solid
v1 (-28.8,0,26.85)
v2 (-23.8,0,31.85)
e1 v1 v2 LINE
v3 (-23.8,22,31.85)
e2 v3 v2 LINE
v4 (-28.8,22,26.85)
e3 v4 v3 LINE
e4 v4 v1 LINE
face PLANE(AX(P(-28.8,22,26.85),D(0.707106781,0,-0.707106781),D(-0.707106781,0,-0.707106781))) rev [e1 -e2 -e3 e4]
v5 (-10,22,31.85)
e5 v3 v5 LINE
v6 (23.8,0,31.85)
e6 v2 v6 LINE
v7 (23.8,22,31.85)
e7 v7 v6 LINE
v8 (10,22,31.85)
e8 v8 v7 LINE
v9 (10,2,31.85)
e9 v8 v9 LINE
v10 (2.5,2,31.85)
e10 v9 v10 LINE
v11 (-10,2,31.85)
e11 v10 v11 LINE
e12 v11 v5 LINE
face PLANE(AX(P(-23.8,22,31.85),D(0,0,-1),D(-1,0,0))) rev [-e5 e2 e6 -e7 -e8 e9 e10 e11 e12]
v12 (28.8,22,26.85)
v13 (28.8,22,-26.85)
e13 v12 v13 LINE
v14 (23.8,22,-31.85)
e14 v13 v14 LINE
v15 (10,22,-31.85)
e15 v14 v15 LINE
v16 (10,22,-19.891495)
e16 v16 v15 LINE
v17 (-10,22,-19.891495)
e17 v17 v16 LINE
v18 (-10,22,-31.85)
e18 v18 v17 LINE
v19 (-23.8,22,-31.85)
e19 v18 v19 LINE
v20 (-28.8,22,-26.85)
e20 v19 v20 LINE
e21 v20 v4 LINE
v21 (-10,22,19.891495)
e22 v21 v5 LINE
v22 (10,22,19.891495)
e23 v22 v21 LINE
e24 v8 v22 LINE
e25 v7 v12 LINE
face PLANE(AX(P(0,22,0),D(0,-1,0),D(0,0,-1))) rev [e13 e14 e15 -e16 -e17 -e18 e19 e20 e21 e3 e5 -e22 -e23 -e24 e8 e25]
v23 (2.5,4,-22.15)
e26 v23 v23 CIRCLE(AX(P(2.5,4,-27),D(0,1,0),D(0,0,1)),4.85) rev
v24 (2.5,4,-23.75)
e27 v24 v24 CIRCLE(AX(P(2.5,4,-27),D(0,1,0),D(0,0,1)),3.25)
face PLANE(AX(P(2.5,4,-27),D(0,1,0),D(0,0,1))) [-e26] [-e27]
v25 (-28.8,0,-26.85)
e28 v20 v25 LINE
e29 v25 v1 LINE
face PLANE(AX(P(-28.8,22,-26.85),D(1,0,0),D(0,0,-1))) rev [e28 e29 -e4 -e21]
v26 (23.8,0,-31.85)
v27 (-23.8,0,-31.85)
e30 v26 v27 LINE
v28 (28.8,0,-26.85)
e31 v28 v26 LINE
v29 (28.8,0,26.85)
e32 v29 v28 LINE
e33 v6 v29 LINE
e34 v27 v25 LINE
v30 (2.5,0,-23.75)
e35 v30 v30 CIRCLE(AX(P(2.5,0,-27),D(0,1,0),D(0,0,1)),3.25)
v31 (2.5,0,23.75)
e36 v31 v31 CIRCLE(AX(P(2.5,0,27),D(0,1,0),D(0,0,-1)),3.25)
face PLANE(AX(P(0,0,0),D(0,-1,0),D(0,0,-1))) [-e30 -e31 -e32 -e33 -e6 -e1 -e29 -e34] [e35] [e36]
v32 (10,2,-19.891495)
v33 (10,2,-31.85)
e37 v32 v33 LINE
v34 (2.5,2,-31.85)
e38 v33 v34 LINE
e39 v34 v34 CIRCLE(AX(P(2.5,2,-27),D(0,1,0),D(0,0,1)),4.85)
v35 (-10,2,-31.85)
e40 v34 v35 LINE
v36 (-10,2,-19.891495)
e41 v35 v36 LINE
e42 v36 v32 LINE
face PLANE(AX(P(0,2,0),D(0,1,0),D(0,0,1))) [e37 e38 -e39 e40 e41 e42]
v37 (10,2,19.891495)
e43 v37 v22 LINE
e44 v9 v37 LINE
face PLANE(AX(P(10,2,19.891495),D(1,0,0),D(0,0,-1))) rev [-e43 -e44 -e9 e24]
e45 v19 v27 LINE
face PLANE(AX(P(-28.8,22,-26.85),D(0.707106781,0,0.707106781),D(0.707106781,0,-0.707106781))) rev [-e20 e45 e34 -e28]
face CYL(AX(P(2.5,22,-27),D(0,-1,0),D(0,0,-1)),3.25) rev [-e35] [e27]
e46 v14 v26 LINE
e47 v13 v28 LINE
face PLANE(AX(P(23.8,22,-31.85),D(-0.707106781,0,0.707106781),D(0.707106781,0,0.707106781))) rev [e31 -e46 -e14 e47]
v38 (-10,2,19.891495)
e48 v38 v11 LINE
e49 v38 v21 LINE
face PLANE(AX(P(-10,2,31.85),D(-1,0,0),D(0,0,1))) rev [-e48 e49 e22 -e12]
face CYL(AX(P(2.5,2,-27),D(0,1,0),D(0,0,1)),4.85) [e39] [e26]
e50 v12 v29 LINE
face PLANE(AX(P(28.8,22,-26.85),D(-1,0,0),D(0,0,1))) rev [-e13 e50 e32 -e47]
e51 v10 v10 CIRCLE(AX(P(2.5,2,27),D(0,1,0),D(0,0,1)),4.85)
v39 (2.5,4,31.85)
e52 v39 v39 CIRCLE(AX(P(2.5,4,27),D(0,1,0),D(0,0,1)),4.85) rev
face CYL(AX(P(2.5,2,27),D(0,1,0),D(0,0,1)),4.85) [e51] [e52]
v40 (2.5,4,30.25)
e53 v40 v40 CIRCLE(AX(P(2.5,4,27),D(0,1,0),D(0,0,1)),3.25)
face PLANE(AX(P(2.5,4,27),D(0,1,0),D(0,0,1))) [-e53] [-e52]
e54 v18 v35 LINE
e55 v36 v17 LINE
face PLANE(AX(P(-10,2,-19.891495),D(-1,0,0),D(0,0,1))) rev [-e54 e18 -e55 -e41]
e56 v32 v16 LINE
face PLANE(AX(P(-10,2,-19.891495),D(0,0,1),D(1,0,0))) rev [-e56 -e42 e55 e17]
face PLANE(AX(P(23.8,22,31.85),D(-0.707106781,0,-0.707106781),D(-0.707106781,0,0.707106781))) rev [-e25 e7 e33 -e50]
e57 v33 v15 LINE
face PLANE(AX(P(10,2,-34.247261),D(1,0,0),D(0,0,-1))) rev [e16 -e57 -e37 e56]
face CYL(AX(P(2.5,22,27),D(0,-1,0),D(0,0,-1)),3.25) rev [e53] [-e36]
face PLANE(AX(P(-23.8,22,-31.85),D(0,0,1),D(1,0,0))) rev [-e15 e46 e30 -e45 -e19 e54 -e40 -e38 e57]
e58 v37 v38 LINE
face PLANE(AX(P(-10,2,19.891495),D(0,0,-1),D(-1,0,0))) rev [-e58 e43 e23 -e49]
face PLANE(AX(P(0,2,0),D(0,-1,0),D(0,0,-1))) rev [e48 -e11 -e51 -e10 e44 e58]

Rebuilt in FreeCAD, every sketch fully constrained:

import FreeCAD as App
import Part
import Sketcher

V = App.Vector
Q = App.Units.Quantity

doc = App.newDocument("Part")
body = doc.addObject("PartDesign::Body", "Body")

# Sketch on XZ plane
sketch1 = doc.addObject("Sketcher::SketchObject", "Sketch")
body.addObject(sketch1)
sketch1.AttachmentSupport = (doc.XZ_Plane, [""])
sketch1.MapMode = "FlatFace"
sketch1.addGeometry(Part.LineSegment(V(-23.8, -31.9, 0), V(-28.8, -26.9, 0)), False)
sketch1.addGeometry(Part.LineSegment(V(-28.8, -26.9, 0), V(-28.8, 26.9, 0)), False)
sketch1.addGeometry(Part.LineSegment(V(-28.8, 26.9, 0), V(-23.8, 31.9, 0)), False)
sketch1.addGeometry(Part.LineSegment(V(-23.8, 31.9, 0), V(23.8, 31.9, 0)), False)
sketch1.addGeometry(Part.LineSegment(V(23.8, 31.9, 0), V(28.8, 26.9, 0)), False)
sketch1.addGeometry(Part.LineSegment(V(28.8, 26.9, 0), V(28.8, -26.9, 0)), False)
sketch1.addGeometry(Part.LineSegment(V(28.8, -26.9, 0), V(23.8, -31.9, 0)), False)
sketch1.addGeometry(Part.LineSegment(V(23.8, -31.9, 0), V(-23.8, -31.9, 0)), False)
sketch1.addGeometry(Part.Circle(V(2.5, 27, 0), V(0, 0, 1), 3.2), False)
sketch1.addGeometry(Part.Circle(V(2.5, -27, 0), V(0, 0, 1), 3.2), False)
sketch1.addConstraint(Sketcher.Constraint("Coincident", 0, 2, 1, 1))
sketch1.addConstraint(Sketcher.Constraint("Coincident", 1, 2, 2, 1))
sketch1.addConstraint(Sketcher.Constraint("Coincident", 2, 2, 3, 1))
sketch1.addConstraint(Sketcher.Constraint("Coincident", 3, 2, 4, 1))
sketch1.addConstraint(Sketcher.Constraint("Coincident", 4, 2, 5, 1))
sketch1.addConstraint(Sketcher.Constraint("Coincident", 5, 2, 6, 1))
sketch1.addConstraint(Sketcher.Constraint("Coincident", 6, 2, 7, 1))
sketch1.addConstraint(Sketcher.Constraint("Coincident", 7, 2, 0, 1))
sketch1.addConstraint(Sketcher.Constraint("Vertical", 1))
sketch1.addConstraint(Sketcher.Constraint("Horizontal", 3))
sketch1.addConstraint(Sketcher.Constraint("Vertical", 5))
sketch1.addConstraint(Sketcher.Constraint("Horizontal", 7))
sketch1.addConstraint(Sketcher.Constraint("Equal", 8, 9))
sketch1.addConstraint(Sketcher.Constraint("Symmetric", 0, 2, 4, 2, -1, 1))
sketch1.addConstraint(Sketcher.Constraint("Symmetric", 2, 2, 6, 2, -1, 1))
sketch1.addConstraint(Sketcher.Constraint("Symmetric", 8, 3, 9, 3, -1))
sketch1.addConstraint(Sketcher.Constraint("Perpendicular", 0, 2))
sketch1.addConstraint(Sketcher.Constraint("Perpendicular", 2, 4))
sketch1.addConstraint(Sketcher.Constraint("Perpendicular", 4, 6))
sketch1.addConstraint(Sketcher.Constraint("Horizontal", 1, 2, 4, 2))
sketch1.addConstraint(Sketcher.Constraint("Vertical", 3, 2, 6, 2))
sketch1.addConstraint(Sketcher.Constraint("Diameter", 8, Q("6.5 mm")))
sketch1.addConstraint(Sketcher.Constraint("DistanceX", 3, 1, 3, 2, Q("47.6 mm")))
sketch1.addConstraint(Sketcher.Constraint("DistanceY", 1, 1, 1, 2, Q("53.7 mm")))
sketch1.addConstraint(Sketcher.Constraint("DistanceY", -1, 1, 8, 3, Q("27 mm")))
sketch1.addConstraint(Sketcher.Constraint("DistanceX", 1, 2, 2, 2, Q("5 mm")))
sketch1.addConstraint(Sketcher.Constraint("DistanceX", -1, 1, 8, 3, Q("2.5 mm")))
pad1 = doc.addObject("PartDesign::Pad", "Pad")
body.addObject(pad1)
pad1.Profile = sketch1
pad1.Length = 22
pad1.Reversed = True

# Sketch on XZ plane
sketch2 = doc.addObject("Sketcher::SketchObject", "Sketch001")
body.addObject(sketch2)
sketch2.AttachmentSupport = (doc.XZ_Plane, [""])
sketch2.MapMode = "FlatFace"
sketch2.AttachmentOffset = App.Placement(V(0, 0, -22), App.Rotation())
sketch2.addGeometry(Part.LineSegment(V(10, 19.9, 0), V(-10, 19.9, 0)), False)
sketch2.addGeometry(Part.LineSegment(V(-10, 19.9, 0), V(-10, 34.3, 0)), False)
sketch2.addGeometry(Part.LineSegment(V(-10, 34.3, 0), V(10, 34.3, 0)), False)
sketch2.addGeometry(Part.LineSegment(V(10, 34.3, 0), V(10, 19.9, 0)), False)
sketch2.addGeometry(Part.Circle(V(2.5, 27, 0), V(0, 0, 1), 4.8), False)
sketch2.addGeometry(Part.LineSegment(V(-10, -34.2, 0), V(-10, -19.9, 0)), False)
sketch2.addGeometry(Part.LineSegment(V(-10, -19.9, 0), V(10, -19.9, 0)), False)
sketch2.addGeometry(Part.LineSegment(V(10, -19.9, 0), V(10, -34.2, 0)), False)
sketch2.addGeometry(Part.LineSegment(V(10, -34.2, 0), V(-10, -34.2, 0)), False)
sketch2.addGeometry(Part.Circle(V(2.5, -27, 0), V(0, 0, 1), 4.8), False)
sketch2.addConstraint(Sketcher.Constraint("Coincident", 0, 2, 1, 1))
sketch2.addConstraint(Sketcher.Constraint("Coincident", 1, 2, 2, 1))
sketch2.addConstraint(Sketcher.Constraint("Coincident", 2, 2, 3, 1))
sketch2.addConstraint(Sketcher.Constraint("Coincident", 3, 2, 0, 1))
sketch2.addConstraint(Sketcher.Constraint("Coincident", 5, 2, 6, 1))
sketch2.addConstraint(Sketcher.Constraint("Coincident", 6, 2, 7, 1))
sketch2.addConstraint(Sketcher.Constraint("Coincident", 7, 2, 8, 1))
sketch2.addConstraint(Sketcher.Constraint("Coincident", 8, 2, 5, 1))
sketch2.addConstraint(Sketcher.Constraint("Horizontal", 0))
sketch2.addConstraint(Sketcher.Constraint("Vertical", 1))
sketch2.addConstraint(Sketcher.Constraint("Horizontal", 2))
sketch2.addConstraint(Sketcher.Constraint("Vertical", 3))
sketch2.addConstraint(Sketcher.Constraint("Vertical", 5))
sketch2.addConstraint(Sketcher.Constraint("Horizontal", 6))
sketch2.addConstraint(Sketcher.Constraint("Vertical", 7))
sketch2.addConstraint(Sketcher.Constraint("Horizontal", 8))
sketch2.addConstraint(Sketcher.Constraint("Equal", 4, 9))
sketch2.addConstraint(Sketcher.Constraint("Symmetric", 3, 2, 5, 2, -1, 1))
sketch2.addConstraint(Sketcher.Constraint("Symmetric", 4, 3, 9, 3, -1))
sketch2.addConstraint(Sketcher.Constraint("Vertical", 1, 2, 5, 2))
sketch2.addConstraint(Sketcher.Constraint("Vertical", 3, 2, 6, 2))
sketch2.addConstraint(Sketcher.Constraint("Diameter", 4, Q("9.7 mm")))
sketch2.addConstraint(Sketcher.Constraint("DistanceX", 0, 2, 0, 1, Q("20 mm")))
sketch2.addConstraint(Sketcher.Constraint("DistanceY", -1, 1, 4, 3, Q("27 mm")))
sketch2.addConstraint(Sketcher.Constraint("DistanceX", -1, 1, 4, 3, Q("2.5 mm")))
sketch2.addConstraint(Sketcher.Constraint("DistanceY", 1, 1, 1, 2, Q("14.41694 mm")))
sketch2.addConstraint(Sketcher.Constraint("DistanceY", 5, 1, 5, 2, Q("14.355767 mm")))
sketch2.addConstraint(Sketcher.Constraint("DistanceY", 7, 2, -1, 1, Q("34.247261 mm")))
pocket1 = doc.addObject("PartDesign::Pocket", "Pocket")
body.addObject(pocket1)
pocket1.Profile = sketch2
pocket1.Length = 20
pocket1.Reversed = True

# Sketch on XZ plane
sketch3 = doc.addObject("Sketcher::SketchObject", "Sketch002")
body.addObject(sketch3)
sketch3.AttachmentSupport = (doc.XZ_Plane, [""])
sketch3.MapMode = "FlatFace"
sketch3.AttachmentOffset = App.Placement(V(0, 0, -22), App.Rotation())
sketch3.addGeometry(Part.Circle(V(2, -27, 0), V(0, 0, 1), 6), False)
sketch3.addGeometry(Part.Circle(V(2, 27, 0), V(0, 0, 1), 6), False)
sketch3.addConstraint(Sketcher.Constraint("Equal", 0, 1))
sketch3.addConstraint(Sketcher.Constraint("Symmetric", 0, 3, 1, 3, -1))
sketch3.addConstraint(Sketcher.Constraint("Diameter", 0, Q("12 mm")))
sketch3.addConstraint(Sketcher.Constraint("DistanceY", 0, 3, -1, 1, Q("27 mm")))
sketch3.addConstraint(Sketcher.Constraint("DistanceX", -1, 1, 0, 3, Q("2.5 mm")))
pocket2 = doc.addObject("PartDesign::Pocket", "Pocket001")
body.addObject(pocket2)
pocket2.Profile = sketch3
pocket2.Length = 18
pocket2.Reversed = True

doc.recompute()
